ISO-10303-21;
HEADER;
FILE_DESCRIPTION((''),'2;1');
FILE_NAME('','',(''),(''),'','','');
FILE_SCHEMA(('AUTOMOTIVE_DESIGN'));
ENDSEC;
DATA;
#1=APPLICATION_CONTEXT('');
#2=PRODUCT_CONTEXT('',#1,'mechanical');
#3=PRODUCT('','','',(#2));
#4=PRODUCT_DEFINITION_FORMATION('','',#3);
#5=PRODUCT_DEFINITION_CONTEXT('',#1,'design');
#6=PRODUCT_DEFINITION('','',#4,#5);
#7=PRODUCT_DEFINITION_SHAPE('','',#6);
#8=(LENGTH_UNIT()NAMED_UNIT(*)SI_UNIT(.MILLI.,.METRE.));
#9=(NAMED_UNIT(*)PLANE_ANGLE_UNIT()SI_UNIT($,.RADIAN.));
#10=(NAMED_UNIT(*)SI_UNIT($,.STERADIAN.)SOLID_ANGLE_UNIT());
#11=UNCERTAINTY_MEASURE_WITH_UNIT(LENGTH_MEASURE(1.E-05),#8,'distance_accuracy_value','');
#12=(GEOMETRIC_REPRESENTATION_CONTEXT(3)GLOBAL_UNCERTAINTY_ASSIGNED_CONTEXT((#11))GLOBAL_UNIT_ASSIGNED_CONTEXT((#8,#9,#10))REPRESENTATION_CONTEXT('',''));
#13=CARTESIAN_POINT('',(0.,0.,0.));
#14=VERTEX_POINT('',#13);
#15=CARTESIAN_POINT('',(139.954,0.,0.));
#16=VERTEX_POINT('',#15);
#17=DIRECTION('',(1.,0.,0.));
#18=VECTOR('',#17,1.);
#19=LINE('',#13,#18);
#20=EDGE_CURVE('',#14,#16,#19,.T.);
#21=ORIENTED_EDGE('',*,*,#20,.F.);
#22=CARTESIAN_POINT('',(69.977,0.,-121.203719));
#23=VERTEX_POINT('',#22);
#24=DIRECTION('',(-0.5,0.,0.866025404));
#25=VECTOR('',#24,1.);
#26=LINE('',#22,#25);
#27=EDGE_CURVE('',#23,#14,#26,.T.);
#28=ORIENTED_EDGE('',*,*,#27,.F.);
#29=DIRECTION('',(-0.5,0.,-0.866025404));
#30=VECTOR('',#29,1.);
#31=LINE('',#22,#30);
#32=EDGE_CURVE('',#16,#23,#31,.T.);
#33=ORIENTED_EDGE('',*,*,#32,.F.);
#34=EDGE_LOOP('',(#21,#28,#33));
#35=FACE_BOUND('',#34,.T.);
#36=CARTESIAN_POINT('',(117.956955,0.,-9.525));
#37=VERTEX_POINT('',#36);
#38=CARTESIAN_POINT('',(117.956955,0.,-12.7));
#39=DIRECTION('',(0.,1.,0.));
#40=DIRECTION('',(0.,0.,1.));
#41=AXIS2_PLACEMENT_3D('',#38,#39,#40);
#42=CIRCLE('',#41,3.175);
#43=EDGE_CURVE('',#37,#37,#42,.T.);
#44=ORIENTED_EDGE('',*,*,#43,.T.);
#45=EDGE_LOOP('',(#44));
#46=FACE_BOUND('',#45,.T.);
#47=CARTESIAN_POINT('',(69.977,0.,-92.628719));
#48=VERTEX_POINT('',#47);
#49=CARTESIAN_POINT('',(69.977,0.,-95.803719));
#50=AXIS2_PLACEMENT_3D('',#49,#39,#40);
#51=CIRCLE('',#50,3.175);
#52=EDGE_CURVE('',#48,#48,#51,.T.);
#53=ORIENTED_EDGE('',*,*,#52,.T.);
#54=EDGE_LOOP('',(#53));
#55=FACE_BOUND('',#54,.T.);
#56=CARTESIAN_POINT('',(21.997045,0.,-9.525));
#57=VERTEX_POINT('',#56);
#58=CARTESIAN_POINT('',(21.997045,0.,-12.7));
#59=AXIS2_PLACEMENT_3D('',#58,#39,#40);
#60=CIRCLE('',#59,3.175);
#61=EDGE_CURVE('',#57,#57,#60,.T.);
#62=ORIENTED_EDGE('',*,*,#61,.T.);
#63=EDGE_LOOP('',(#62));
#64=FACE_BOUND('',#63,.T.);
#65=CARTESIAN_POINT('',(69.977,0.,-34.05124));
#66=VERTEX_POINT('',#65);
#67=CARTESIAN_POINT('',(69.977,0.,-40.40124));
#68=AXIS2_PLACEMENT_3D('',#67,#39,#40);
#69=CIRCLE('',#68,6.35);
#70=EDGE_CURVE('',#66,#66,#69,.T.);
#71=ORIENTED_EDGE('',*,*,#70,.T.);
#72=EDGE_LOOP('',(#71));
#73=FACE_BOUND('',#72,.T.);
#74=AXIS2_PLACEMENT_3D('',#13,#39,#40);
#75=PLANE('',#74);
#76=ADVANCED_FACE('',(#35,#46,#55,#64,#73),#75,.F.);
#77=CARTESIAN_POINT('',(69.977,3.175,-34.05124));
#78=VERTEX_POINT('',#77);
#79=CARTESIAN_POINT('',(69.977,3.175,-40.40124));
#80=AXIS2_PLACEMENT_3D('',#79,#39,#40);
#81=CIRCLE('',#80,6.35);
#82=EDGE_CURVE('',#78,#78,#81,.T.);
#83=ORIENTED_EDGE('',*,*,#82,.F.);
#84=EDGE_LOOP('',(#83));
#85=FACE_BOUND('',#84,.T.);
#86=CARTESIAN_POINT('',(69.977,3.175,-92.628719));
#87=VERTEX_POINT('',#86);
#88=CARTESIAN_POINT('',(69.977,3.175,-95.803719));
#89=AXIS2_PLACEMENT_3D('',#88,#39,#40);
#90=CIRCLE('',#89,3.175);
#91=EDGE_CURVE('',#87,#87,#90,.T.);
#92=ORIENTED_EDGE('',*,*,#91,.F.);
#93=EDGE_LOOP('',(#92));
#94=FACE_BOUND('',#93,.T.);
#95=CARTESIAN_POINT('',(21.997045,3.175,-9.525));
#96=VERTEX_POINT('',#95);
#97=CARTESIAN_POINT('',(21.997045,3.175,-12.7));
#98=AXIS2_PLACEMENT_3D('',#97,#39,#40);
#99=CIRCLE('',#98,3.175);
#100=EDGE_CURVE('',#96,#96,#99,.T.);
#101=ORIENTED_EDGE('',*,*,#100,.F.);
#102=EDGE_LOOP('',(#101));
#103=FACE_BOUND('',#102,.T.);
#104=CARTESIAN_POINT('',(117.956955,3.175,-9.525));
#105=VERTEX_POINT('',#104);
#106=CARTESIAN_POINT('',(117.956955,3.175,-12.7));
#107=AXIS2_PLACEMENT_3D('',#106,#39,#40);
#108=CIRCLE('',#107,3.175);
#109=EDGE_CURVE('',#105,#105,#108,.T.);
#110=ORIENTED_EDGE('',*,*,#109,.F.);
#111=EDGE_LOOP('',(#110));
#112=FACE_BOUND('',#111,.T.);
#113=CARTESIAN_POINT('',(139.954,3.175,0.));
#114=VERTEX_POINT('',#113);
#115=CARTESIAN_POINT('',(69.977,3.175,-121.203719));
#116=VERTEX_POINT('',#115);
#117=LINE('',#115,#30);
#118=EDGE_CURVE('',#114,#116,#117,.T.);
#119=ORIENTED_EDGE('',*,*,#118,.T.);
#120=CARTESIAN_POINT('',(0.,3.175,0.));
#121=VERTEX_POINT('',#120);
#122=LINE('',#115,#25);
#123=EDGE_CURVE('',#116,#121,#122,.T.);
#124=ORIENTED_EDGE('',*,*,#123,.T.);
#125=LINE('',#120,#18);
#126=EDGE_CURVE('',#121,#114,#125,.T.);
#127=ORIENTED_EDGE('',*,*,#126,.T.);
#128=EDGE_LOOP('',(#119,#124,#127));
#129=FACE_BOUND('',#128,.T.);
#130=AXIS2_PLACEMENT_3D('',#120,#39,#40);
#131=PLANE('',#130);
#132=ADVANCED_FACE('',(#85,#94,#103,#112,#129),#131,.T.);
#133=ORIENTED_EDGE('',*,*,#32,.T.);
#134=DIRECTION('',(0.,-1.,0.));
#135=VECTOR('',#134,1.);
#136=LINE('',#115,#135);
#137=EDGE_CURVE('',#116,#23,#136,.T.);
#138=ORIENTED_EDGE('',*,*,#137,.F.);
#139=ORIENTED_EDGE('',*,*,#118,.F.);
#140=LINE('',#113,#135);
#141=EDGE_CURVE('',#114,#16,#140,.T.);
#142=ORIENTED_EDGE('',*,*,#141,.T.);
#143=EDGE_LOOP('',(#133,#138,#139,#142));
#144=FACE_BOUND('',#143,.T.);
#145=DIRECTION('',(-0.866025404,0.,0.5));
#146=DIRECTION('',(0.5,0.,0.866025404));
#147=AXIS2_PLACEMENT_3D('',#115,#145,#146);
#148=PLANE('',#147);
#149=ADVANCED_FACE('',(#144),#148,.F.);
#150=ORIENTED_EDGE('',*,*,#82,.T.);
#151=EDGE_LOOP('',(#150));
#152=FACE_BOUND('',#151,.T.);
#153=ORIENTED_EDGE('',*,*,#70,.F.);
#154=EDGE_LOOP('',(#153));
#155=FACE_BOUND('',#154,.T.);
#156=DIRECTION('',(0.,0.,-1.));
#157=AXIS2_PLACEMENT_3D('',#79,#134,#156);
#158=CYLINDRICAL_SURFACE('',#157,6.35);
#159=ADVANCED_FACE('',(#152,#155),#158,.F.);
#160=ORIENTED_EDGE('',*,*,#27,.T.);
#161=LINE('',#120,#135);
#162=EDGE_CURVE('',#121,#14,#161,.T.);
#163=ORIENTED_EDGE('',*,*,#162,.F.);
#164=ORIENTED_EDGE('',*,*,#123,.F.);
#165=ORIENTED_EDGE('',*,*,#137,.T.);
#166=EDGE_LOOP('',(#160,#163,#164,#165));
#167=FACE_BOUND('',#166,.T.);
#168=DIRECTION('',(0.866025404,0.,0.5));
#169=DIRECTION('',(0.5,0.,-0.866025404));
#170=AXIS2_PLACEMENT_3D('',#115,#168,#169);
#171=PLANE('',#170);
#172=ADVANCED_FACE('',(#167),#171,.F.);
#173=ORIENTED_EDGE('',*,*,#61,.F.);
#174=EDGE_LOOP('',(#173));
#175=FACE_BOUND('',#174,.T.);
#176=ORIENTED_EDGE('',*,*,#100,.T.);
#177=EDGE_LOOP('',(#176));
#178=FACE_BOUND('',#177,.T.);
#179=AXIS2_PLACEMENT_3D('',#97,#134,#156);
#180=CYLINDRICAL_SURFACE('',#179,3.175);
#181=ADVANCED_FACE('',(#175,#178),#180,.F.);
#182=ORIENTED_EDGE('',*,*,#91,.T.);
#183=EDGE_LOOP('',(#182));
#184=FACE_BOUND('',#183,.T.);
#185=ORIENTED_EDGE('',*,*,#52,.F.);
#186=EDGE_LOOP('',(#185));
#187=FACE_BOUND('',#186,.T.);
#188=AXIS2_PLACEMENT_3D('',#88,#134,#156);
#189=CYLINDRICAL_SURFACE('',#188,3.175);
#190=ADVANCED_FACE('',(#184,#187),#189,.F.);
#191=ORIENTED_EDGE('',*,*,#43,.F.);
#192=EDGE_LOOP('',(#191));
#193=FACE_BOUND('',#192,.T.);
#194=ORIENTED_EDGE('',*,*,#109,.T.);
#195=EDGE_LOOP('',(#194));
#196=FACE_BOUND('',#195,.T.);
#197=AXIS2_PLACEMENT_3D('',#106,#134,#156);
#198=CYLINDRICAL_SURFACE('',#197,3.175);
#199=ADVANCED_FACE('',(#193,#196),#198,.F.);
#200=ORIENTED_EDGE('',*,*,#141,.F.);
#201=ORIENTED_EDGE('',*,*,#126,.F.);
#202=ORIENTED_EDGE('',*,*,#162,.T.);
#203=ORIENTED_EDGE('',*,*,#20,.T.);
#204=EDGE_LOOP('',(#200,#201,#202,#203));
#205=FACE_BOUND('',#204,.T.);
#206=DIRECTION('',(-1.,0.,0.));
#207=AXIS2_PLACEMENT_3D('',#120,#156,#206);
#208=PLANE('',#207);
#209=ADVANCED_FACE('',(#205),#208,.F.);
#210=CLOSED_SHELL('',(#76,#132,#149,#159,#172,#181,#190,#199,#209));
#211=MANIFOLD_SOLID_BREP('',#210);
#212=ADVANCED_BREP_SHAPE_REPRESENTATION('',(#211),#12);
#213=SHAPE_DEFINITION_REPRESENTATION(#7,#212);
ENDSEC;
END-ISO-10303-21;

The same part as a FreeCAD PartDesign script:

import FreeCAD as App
import Part
import Sketcher

V = App.Vector
Q = App.Units.Quantity


def add_polygon(sketch, points):
    """Adds a closed chain of lines whose ends are joined by coincident constraints."""
    first, n = sketch.GeometryCount, len(points)
    for a, b in zip(points, points[1:] + points[:1]):
        sketch.addGeometry(Part.LineSegment(App.Vector(*a, 0), App.Vector(*b, 0)), False)
    for i in range(n):
        sketch.addConstraint(Sketcher.Constraint("Coincident", first + i, 2, first + (i + 1) % n, 1))

doc = App.newDocument("Part")
body = doc.addObject("PartDesign::Body", "Body")

sketch1 = body.newObject("Sketcher::SketchObject", "Sketch")
sketch1.AttachmentSupport = (doc.getObject("XZ_Plane"), [""])
sketch1.MapMode = "FlatFace"
add_polygon(sketch1, [(0, 0), (140, 0), (70, -121.2)])
sketch1.addGeometry(Part.Circle(V(22, -12.7, 0), V(0, 0, 1), 3.2), False)
sketch1.addGeometry(Part.Circle(V(118, -12.7, 0), V(0, 0, 1), 3.2), False)
sketch1.addGeometry(Part.Circle(V(70, -40.4, 0), V(0, 0, 1), 6.3), False)
sketch1.addGeometry(Part.Circle(V(70, -95.8, 0), V(0, 0, 1), 3.2), False)
sketch1.addConstraint(Sketcher.Constraint("Horizontal", 0))
sketch1.addConstraint(Sketcher.Constraint("Coincident", 2, 2, -1, 1))
sketch1.addConstraint(Sketcher.Constraint("Equal", 3, 4))
sketch1.addConstraint(Sketcher.Constraint("Equal", 4, 6))
sketch1.addConstraint(Sketcher.Constraint("Horizontal", 3, 3, 4, 3))
sketch1.addConstraint(Sketcher.Constraint("Vertical", 5, 3, 6, 3))
sketch1.addConstraint(Sketcher.Constraint("Vertical", 6, 3, 1, 2))
sketch1.addConstraint(Sketcher.Constraint("Equal", 1, 2))
sketch1.addConstraint(Sketcher.Constraint("Diameter", 5, Q("0.5 in")))
sketch1.addConstraint(Sketcher.Constraint("Diameter", 3, Q("0.25 in")))
sketch1.addConstraint(Sketcher.Constraint("Angle", 1, Q("-120 deg")))
sketch1.addConstraint(Sketcher.Constraint("DistanceY", 1, 2, 6, 3, Q("1 in")))
sketch1.addConstraint(Sketcher.Constraint("DistanceX", 0, 1, 0, 2, Q("5.51 in")))
sketch1.addConstraint(Sketcher.Constraint("DistanceY", 3, 3, -1, 1, Q("0.5 in")))
sketch1.addConstraint(Sketcher.Constraint("DistanceY", 5, 3, -1, 1, Q("1.5906 in")))
sketch1.addConstraint(Sketcher.Constraint("DistanceX", 3, 3, 4, 3, Q("95.959909 mm")))
sketch1.addConstraint(Sketcher.Constraint("DistanceX", -1, 1, 3, 3, Q("21.997045 mm")))
pad1 = body.newObject("PartDesign::Pad", "Pad")
pad1.Profile = sketch1
pad1.Length = Q("0.125 in")
pad1.Reversed = True

doc.recompute()
